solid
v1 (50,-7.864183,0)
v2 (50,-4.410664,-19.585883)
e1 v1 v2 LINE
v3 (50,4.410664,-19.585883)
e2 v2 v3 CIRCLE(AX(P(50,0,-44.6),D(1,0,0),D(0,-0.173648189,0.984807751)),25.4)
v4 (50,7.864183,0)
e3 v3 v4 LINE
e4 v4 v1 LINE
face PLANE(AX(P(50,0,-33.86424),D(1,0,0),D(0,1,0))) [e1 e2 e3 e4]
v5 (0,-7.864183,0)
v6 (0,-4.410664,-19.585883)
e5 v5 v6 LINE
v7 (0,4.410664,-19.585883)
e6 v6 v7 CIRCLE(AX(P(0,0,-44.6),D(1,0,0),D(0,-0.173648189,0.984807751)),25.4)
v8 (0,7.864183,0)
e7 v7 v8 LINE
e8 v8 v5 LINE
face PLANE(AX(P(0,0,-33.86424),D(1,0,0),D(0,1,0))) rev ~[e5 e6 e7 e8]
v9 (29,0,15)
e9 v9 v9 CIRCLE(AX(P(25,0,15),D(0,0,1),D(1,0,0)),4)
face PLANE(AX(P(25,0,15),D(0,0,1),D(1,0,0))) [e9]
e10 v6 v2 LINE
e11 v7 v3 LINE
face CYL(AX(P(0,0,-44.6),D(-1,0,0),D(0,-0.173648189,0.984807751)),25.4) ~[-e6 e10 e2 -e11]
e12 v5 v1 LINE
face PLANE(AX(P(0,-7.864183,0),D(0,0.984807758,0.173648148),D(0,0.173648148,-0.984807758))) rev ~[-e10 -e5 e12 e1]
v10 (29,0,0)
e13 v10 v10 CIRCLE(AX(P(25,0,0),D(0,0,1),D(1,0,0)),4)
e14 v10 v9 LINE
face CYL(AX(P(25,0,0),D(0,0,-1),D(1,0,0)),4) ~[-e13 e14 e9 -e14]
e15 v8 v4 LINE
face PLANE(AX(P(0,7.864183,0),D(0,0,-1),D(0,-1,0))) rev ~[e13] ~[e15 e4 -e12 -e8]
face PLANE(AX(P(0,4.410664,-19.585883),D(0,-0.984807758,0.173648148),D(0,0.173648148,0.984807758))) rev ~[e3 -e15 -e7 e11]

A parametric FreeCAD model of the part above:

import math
import FreeCAD as App
import Part
import Sketcher

V = App.Vector
Q = App.Units.Quantity

doc = App.newDocument("Part")
body = doc.addObject("PartDesign::Body", "Body")

# Sketch on YZ plane
sketch1 = doc.addObject("Sketcher::SketchObject", "Sketch")
body.addObject(sketch1)
sketch1.AttachmentSupport = (doc.YZ_Plane, [""])
sketch1.MapMode = "FlatFace"
sketch1.addGeometry(Part.LineSegment(V(-7.864183, 0, 0), V(-4.410664, -19.585883, 0)), False)
sketch1.addGeometry(Part.ArcOfCircle(Part.Circle(V(0, -44.6, 0), V(0, 0, 1), 25.4), math.radians(100.000001), math.radians(439.999999)), False)
sketch1.addGeometry(Part.LineSegment(V(4.410664, -19.585883, 0), V(7.864183, 0, 0)), False)
sketch1.addGeometry(Part.LineSegment(V(7.864183, 0, 0), V(-7.864183, 0, 0)), False)
sketch1.addConstraint(Sketcher.Constraint("Coincident", 0, 2, 1, 1))
sketch1.addConstraint(Sketcher.Constraint("Coincident", 1, 2, 2, 1))
sketch1.addConstraint(Sketcher.Constraint("Coincident", 2, 2, 3, 1))
sketch1.addConstraint(Sketcher.Constraint("Coincident", 3, 2, 0, 1))
sketch1.addConstraint(Sketcher.Constraint("Horizontal", 3))
sketch1.addConstraint(Sketcher.Constraint("Symmetric", 2, 2, 3, 2, -1, 1))
sketch1.addConstraint(Sketcher.Constraint("Symmetric", 0, 2, 1, 2, -2))
sketch1.addConstraint(Sketcher.Constraint("Radius", 1, 25.4))
sketch1.addConstraint(Sketcher.Constraint("Angle", 0, Q("-80.000002 deg")))
sketch1.addConstraint(Sketcher.Constraint("DistanceY", 1, 3, -1, 1, 44.6))
sketch1.addConstraint(Sketcher.Constraint("DistanceX", 3, 2, 3, 1, 15.728366))
pad1 = doc.addObject("PartDesign::Pad", "Pad")
body.addObject(pad1)
pad1.Profile = sketch1
pad1.Length = 50

# Sketch on XY plane
sketch2 = doc.addObject("Sketcher::SketchObject", "Sketch001")
body.addObject(sketch2)
sketch2.AttachmentSupport = (doc.XY_Plane, [""])
sketch2.MapMode = "FlatFace"
sketch2.addGeometry(Part.Circle(V(25, 0, 0), V(0, 0, 1), 4), False)
sketch2.addConstraint(Sketcher.Constraint("PointOnObject", 0, 3, -1))
sketch2.addConstraint(Sketcher.Constraint("Diameter", 0, 8.0))
sketch2.addConstraint(Sketcher.Constraint("DistanceX", -1, 1, 0, 3, 25.0))
pad2 = doc.addObject("PartDesign::Pad", "Pad001")
body.addObject(pad2)
pad2.Profile = sketch2
pad2.Length = 15

doc.recompute()
